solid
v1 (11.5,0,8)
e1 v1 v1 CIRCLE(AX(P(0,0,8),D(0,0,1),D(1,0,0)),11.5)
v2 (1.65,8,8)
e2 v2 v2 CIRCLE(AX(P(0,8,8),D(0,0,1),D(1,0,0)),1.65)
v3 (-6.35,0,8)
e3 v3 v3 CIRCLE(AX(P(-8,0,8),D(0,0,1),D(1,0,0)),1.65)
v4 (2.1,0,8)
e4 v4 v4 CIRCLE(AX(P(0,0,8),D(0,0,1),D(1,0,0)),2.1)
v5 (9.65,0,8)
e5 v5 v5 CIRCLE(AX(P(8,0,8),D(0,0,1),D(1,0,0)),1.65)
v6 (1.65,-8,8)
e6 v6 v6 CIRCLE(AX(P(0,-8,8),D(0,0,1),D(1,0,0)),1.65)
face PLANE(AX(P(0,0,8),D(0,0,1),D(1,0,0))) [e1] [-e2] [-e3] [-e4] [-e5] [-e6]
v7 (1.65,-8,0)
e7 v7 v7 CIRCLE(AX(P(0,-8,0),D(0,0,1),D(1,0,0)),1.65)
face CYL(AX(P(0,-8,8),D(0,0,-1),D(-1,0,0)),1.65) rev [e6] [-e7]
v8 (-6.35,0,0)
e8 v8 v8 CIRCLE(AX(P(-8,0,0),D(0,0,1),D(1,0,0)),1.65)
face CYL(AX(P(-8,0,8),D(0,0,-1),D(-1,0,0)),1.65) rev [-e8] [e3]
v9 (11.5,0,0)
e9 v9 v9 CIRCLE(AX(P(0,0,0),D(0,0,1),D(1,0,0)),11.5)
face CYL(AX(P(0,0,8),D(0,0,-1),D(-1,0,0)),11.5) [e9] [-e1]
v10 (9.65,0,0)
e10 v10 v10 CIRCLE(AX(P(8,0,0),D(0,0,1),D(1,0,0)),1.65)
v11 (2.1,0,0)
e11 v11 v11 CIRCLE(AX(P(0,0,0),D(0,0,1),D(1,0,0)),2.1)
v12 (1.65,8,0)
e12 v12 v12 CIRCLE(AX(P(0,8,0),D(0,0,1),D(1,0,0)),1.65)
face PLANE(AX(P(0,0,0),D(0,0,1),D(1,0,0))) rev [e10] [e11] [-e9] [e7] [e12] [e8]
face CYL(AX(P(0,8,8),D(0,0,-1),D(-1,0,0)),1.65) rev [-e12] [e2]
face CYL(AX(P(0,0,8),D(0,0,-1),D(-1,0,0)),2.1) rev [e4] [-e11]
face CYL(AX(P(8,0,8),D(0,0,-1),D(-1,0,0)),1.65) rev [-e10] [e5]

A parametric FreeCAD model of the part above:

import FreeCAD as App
import Part
import Sketcher
from FreeCAD import Vector

doc = App.newDocument("Part")
body = doc.addObject("PartDesign::Body", "Body")

sketch1 = doc.addObject("Sketcher::SketchObject", "Sketch")
body.addObject(sketch1)
sketch1.AttachmentSupport = (doc.XY_Plane, [""])
sketch1.MapMode = "FlatFace"
sketch1.addGeometry([
    Part.Circle(Vector(0, 0, 0), Vector(0, 0, 1), 11.5),
    Part.Circle(Vector(0, -8, 0), Vector(0, 0, 1), 1.6),
    Part.Circle(Vector(-8, 0, 0), Vector(0, 0, 1), 1.6),
    Part.Circle(Vector(0, 0, 0), Vector(0, 0, 1), 2.1),
    Part.Circle(Vector(8, 0, 0), Vector(0, 0, 1), 1.6),
    Part.Circle(Vector(0, 8, 0), Vector(0, 0, 1), 1.6),
], False)
sketch1.addConstraint([
    Sketcher.Constraint("Coincident", 0, 3, -1, 1),
    Sketcher.Constraint("Coincident", 3, 3, -1, 1),
    Sketcher.Constraint("Equal", 1, 2),
    Sketcher.Constraint("Equal", 2, 4),
    Sketcher.Constraint("Equal", 4, 5),
    Sketcher.Constraint("Symmetric", 2, 3, 4, 3, -1, 1),
    Sketcher.Constraint("Symmetric", 1, 3, 5, 3, -1, 1),
    Sketcher.Constraint("PointOnObject", 1, 3, -2),
    Sketcher.Constraint("PointOnObject", 2, 3, -1),
    Sketcher.Constraint("Diameter", 0, 23.0),
    Sketcher.Constraint("Diameter", 1, 3.3),
    Sketcher.Constraint("Diameter", 3, 4.2),
    Sketcher.Constraint("DistanceY", 1, 3, -1, 1, 8.0),
    Sketcher.Constraint("DistanceX", 2, 3, -1, 1, 8.0),
])
pad1 = doc.addObject("PartDesign::Pad", "Pad")
body.addObject(pad1)
pad1.Profile = sketch1
pad1.Length = 8

doc.recompute()
